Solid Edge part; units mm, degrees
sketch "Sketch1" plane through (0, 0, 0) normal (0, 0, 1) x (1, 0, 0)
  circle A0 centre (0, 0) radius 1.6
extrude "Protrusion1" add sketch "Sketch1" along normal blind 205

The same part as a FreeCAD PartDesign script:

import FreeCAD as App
import Part
import Sketcher
from FreeCAD import Vector
Q = App.Units.Quantity

doc = App.newDocument("Part")
body = doc.addObject("PartDesign::Body", "Body")

sketch1 = body.newObject("Sketcher::SketchObject", "Sketch")
sketch1.AttachmentSupport = (doc.getObject("XY_Plane"), [""])
sketch1.MapMode = "FlatFace"
sketch1.addGeometry(Part.Circle(Vector(0, 0, 0), Vector(0, 0, 1), 1.6), False)
sketch1.addConstraint(Sketcher.Constraint("Coincident", 0, 3, -1, 1))
sketch1.addConstraint(Sketcher.Constraint("Diameter", 0, Q("3.2 mm")))
pad1 = body.newObject("PartDesign::Pad", "Pad")
pad1.Profile = sketch1
pad1.Length = 205

doc.recompute()
